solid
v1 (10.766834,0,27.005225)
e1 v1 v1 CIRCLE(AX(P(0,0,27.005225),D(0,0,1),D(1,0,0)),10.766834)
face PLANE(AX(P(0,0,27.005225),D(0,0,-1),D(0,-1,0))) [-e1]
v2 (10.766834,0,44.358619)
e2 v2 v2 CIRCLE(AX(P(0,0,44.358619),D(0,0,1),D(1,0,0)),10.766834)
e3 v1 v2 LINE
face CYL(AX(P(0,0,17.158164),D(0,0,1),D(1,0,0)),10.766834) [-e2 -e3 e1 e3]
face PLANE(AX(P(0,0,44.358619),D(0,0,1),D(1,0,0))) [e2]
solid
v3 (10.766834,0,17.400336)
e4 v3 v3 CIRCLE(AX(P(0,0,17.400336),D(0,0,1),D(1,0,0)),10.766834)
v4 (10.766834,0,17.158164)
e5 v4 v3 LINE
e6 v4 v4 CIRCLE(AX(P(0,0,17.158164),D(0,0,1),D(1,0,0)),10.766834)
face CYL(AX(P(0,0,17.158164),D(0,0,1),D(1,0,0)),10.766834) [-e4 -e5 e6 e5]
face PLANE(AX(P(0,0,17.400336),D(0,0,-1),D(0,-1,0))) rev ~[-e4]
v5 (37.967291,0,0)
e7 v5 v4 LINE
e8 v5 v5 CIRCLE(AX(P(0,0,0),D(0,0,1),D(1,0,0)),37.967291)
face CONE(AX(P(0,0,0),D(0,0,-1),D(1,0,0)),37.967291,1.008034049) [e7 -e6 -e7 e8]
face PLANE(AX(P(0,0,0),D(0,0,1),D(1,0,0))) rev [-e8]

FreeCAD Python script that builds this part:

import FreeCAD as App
import Part
import Sketcher

V = App.Vector
Q = App.Units.Quantity


def add_polygon(sketch, points):
    """Adds a closed chain of lines whose ends are joined by coincident constraints."""
    first, n = sketch.GeometryCount, len(points)
    for a, b in zip(points, points[1:] + points[:1]):
        sketch.addGeometry(Part.LineSegment(App.Vector(*a, 0), App.Vector(*b, 0)), False)
    for i in range(n):
        sketch.addConstraint(Sketcher.Constraint("Coincident", first + i, 2, first + (i + 1) % n, 1))

doc = App.newDocument("Part")
params = doc.addObject("Spreadsheet::Sheet", "Params")
for row, (alias, value) in enumerate([
    ("revolution_angle", "360 deg"),
    ("groove_angle", "360 deg"),
], start=1):
    params.set(f"A{row}", alias)
    params.set(f"B{row}", "=" + value)
    params.setAlias(f"B{row}", alias)

body = doc.addObject("PartDesign::Body", "Body")
body.AllowCompound = True

# Sketch on XZ plane
sketch1 = doc.addObject("Sketcher::SketchObject", "Sketch")
body.addObject(sketch1)
sketch1.AttachmentSupport = (doc.XZ_Plane, [""])
sketch1.MapMode = "FlatFace"
add_polygon(sketch1, [(0, 44), (0, 0), (38, 0), (11, 17), (11, 44)])  # lines 0-4
sketch1.addConstraint(Sketcher.Constraint("Vertical", 0))
sketch1.addConstraint(Sketcher.Constraint("Horizontal", 1))
sketch1.addConstraint(Sketcher.Constraint("Vertical", 3))
sketch1.addConstraint(Sketcher.Constraint("Horizontal", 4))
sketch1.addConstraint(Sketcher.Constraint("Coincident", 0, 2, -1, 1))
sketch1.addConstraint(Sketcher.Constraint("DistanceX", 1, 1, 1, 2, Q("37.967291 mm")))
sketch1.addConstraint(Sketcher.Constraint("DistanceY", 0, 2, 0, 1, Q("44.358619 mm")))
sketch1.addConstraint(Sketcher.Constraint("Distance", 2, Q("32.160029 mm")))
sketch1.addConstraint(Sketcher.Constraint("DistanceX", 4, 2, 4, 1, Q("10.766834 mm")))
revolution = doc.addObject("PartDesign::Revolution", "Revolution")
body.addObject(revolution)
revolution.Profile = sketch1
revolution.ReferenceAxis = (sketch1, ["V_Axis"])
revolution.setExpression("Angle", "Params.revolution_angle")

# Sketch on YZ plane
sketch2 = doc.addObject("Sketcher::SketchObject", "Sketch001")
body.addObject(sketch2)
sketch2.AttachmentSupport = (doc.YZ_Plane, [""])
sketch2.MapMode = "FlatFace"
add_polygon(sketch2, [(-11, 27), (-11, 17), (0, 17), (0, 27)])  # lines 0-3
sketch2.addConstraint(Sketcher.Constraint("Vertical", 0))
sketch2.addConstraint(Sketcher.Constraint("Horizontal", 1))
sketch2.addConstraint(Sketcher.Constraint("Vertical", 2))
sketch2.addConstraint(Sketcher.Constraint("Horizontal", 3))
sketch2.addConstraint(Sketcher.Constraint("PointOnObject", 1, 2, -2))
sketch2.addConstraint(Sketcher.Constraint("DistanceY", 0, 2, 0, 1, Q("9.604889 mm")))
sketch2.addConstraint(Sketcher.Constraint("DistanceX", 1, 1, 1, 2, Q("11.047998 mm")))
sketch2.addConstraint(Sketcher.Constraint("DistanceY", -1, 1, 0, 2, Q("17.400336 mm")))
groove = doc.addObject("PartDesign::Groove", "Groove")
body.addObject(groove)
groove.Profile = sketch2
groove.ReferenceAxis = (sketch2, ["V_Axis"])
groove.setExpression("Angle", "Params.groove_angle")

doc.recompute()
